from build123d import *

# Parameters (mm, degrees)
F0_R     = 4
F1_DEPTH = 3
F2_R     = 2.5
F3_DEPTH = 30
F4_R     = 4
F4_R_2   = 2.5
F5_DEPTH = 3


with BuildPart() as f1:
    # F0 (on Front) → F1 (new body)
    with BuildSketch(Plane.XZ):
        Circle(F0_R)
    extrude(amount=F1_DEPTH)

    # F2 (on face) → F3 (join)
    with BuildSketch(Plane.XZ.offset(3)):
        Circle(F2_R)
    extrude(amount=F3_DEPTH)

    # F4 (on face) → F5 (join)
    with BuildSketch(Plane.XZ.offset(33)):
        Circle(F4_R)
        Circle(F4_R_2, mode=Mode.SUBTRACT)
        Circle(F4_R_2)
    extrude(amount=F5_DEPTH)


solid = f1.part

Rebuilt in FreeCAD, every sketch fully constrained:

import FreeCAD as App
import Part
import Sketcher
from FreeCAD import Vector
Q = App.Units.Quantity

doc = App.newDocument("Part")
body = doc.addObject("PartDesign::Body", "Body")

# Sketch on XZ plane
sketch1 = body.newObject("Sketcher::SketchObject", "Sketch")
sketch1.AttachmentSupport = (doc.getObject("XZ_Plane"), [""])
sketch1.MapMode = "FlatFace"
sketch1.addGeometry(Part.Circle(Vector(0, 0, 0), Vector(0, 0, 1), 4), False)
sketch1.addConstraint([
    Sketcher.Constraint("Coincident", 0, 3, -1, 1),
    Sketcher.Constraint("Diameter", 0, Q("8 mm")),
])
pad1 = body.newObject("PartDesign::Pad", "Pad")
pad1.Profile = sketch1
pad1.Length = 3

# Sketch on XZ plane
sketch2 = body.newObject("Sketcher::SketchObject", "Sketch001")
sketch2.AttachmentSupport = (doc.getObject("XZ_Plane"), [""])
sketch2.MapMode = "FlatFace"
sketch2.AttachmentOffset = App.Placement(Vector(0, 0, 3), App.Rotation())
sketch2.addGeometry(Part.Circle(Vector(0, 0, 0), Vector(0, 0, 1), 2.5), False)
sketch2.addConstraint([
    Sketcher.Constraint("Coincident", 0, 3, -1, 1),
    Sketcher.Constraint("Diameter", 0, Q("5 mm")),
])
pad2 = body.newObject("PartDesign::Pad", "Pad001")
pad2.Profile = sketch2
pad2.Length = 30

# Sketch on XZ plane
sketch3 = body.newObject("Sketcher::SketchObject", "Sketch002")
sketch3.AttachmentSupport = (doc.getObject("XZ_Plane"), [""])
sketch3.MapMode = "FlatFace"
sketch3.AttachmentOffset = App.Placement(Vector(0, 0, 33), App.Rotation())
sketch3.addGeometry(Part.Circle(Vector(0, 0, 0), Vector(0, 0, 1), 4), False)
sketch3.addConstraint([
    Sketcher.Constraint("Coincident", 0, 3, -1, 1),
    Sketcher.Constraint("Diameter", 0, Q("8 mm")),
])
pad3 = body.newObject("PartDesign::Pad", "Pad002")
pad3.Profile = sketch3
pad3.Length = 3

doc.recompute()
